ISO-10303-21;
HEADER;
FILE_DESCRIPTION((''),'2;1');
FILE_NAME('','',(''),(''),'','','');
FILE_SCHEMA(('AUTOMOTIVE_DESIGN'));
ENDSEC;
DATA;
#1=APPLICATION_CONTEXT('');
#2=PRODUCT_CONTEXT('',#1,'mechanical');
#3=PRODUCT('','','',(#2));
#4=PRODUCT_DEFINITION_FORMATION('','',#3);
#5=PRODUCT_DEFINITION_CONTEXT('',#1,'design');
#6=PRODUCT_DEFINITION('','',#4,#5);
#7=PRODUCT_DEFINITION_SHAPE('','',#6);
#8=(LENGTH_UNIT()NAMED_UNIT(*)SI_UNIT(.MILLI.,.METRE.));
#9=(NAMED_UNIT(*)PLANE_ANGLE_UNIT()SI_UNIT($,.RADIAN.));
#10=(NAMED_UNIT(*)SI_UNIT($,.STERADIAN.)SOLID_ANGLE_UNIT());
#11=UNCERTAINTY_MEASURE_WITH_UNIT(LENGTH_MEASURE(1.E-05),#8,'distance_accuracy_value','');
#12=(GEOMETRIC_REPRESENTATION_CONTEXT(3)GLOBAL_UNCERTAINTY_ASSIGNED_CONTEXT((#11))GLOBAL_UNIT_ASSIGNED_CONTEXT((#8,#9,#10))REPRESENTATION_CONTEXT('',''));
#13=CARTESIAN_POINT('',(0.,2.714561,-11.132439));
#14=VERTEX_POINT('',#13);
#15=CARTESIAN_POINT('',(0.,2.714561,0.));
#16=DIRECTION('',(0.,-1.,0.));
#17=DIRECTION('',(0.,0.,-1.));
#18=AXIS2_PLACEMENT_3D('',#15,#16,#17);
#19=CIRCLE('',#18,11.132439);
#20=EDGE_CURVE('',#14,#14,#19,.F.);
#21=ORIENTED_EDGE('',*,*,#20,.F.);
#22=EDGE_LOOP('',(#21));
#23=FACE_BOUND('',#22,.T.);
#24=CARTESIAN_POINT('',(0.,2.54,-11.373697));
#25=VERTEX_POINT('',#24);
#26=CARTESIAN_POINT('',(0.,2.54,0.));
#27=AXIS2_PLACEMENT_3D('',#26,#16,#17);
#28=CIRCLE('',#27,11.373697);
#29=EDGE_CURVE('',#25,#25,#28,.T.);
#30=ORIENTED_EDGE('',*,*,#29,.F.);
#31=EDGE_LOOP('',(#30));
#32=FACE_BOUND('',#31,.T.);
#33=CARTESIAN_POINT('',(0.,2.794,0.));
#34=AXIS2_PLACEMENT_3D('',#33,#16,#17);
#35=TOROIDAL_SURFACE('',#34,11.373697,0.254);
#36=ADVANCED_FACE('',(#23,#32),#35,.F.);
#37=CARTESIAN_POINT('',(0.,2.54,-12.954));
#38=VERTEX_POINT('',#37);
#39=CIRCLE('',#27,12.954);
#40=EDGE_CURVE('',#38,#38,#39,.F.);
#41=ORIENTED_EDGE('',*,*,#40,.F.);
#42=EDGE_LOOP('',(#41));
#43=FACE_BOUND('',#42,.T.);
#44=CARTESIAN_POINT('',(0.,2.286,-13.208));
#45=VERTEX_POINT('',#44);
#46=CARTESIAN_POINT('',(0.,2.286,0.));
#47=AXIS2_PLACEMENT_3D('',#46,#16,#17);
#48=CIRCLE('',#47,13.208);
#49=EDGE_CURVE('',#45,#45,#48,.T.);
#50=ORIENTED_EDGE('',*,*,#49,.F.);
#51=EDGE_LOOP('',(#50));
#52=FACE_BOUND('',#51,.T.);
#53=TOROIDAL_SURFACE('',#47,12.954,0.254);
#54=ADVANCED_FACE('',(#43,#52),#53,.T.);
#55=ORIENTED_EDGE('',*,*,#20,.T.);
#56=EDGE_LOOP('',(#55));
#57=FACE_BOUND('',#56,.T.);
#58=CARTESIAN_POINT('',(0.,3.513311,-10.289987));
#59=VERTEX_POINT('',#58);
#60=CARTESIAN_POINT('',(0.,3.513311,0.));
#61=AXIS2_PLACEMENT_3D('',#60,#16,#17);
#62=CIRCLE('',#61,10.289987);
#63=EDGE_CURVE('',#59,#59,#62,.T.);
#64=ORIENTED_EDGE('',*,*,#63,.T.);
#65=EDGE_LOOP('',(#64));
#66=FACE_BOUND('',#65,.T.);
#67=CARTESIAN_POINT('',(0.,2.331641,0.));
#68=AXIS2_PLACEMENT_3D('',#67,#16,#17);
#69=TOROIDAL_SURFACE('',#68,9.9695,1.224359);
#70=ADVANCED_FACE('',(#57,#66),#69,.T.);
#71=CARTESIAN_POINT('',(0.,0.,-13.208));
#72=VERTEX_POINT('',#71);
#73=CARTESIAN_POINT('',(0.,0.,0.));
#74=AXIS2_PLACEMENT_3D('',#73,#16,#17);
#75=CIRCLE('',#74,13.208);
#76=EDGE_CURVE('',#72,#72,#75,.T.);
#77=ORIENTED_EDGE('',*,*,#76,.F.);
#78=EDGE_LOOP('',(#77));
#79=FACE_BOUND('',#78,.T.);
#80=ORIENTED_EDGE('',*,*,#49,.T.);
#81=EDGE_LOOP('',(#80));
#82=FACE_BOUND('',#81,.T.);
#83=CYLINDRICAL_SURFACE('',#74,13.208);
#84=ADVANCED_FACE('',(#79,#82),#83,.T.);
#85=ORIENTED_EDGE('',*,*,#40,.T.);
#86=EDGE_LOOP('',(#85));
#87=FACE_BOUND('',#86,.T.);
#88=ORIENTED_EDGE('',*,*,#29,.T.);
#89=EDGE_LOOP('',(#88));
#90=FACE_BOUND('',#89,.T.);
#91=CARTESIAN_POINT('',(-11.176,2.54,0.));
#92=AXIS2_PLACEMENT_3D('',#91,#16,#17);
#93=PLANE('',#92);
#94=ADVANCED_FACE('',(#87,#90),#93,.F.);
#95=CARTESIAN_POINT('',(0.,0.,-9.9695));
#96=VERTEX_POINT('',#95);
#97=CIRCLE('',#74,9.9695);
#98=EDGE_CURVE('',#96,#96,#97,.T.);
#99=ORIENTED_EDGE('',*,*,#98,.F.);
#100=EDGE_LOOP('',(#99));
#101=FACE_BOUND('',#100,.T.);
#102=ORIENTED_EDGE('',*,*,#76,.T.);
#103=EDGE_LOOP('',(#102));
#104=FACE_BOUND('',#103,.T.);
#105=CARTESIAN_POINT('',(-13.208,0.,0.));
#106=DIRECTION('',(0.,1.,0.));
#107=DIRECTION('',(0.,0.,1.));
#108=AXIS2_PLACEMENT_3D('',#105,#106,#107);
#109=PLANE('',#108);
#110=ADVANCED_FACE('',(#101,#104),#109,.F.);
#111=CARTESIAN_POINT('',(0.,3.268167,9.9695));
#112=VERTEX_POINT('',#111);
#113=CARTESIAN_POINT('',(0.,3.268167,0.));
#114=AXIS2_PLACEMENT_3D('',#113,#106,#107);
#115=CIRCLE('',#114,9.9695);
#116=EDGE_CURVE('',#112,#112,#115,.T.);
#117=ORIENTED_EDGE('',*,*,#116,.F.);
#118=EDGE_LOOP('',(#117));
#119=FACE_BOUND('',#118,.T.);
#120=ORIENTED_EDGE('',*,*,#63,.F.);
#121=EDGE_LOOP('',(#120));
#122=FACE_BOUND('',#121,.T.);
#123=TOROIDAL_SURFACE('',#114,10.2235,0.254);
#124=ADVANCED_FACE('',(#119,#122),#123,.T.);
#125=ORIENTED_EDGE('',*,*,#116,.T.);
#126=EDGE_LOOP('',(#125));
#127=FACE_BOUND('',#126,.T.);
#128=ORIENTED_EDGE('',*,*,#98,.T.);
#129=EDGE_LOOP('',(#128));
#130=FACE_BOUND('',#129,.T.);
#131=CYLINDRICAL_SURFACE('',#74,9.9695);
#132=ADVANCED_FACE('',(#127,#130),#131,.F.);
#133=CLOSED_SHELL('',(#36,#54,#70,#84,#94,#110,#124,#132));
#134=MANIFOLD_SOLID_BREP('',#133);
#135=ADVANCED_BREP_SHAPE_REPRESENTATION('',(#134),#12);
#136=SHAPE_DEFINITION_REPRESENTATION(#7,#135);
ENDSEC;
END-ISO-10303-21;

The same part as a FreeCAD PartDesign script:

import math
import FreeCAD as App
import Part
import Sketcher

V = App.Vector
Q = App.Units.Quantity


def edges_at(feature, points):
    """Names of the edges that pass closest to the given points."""
    edges = feature.Shape.Edges
    near = lambda p: min(range(len(edges)), key=lambda i: edges[i].distToShape(Part.Vertex(*p))[0])
    return sorted({f"Edge{near(p) + 1}" for p in points})

doc = App.newDocument("Part")
body = doc.addObject("PartDesign::Body", "Body")

sketch1 = body.newObject("Sketcher::SketchObject", "Sketch")
sketch1.AttachmentSupport = (doc.getObject("XY_Plane"), [""])
sketch1.MapMode = "FlatFace"
sketch1.addGeometry([
    Part.LineSegment(V(-9.9695, 0, 0), V(-9.9695, 3.556, 0)),
    Part.ArcOfCircle(Part.Circle(V(-9.9695, 2.331641, 0), V(0, 0, 1), 1.224359), math.radians(90), math.radians(170.201815)),
    Part.LineSegment(V(-11.176, 2.54, 0), V(-13.208, 2.54, 0)),
    Part.LineSegment(V(-13.208, 2.54, 0), V(-13.208, 0, 0)),
    Part.LineSegment(V(-13.208, 0, 0), V(-9.9695, 0, 0)),
], False)
sketch1.addConstraint([
    Sketcher.Constraint("Coincident", 0, 2, 1, 1),
    Sketcher.Constraint("Coincident", 1, 2, 2, 1),
    Sketcher.Constraint("Coincident", 2, 2, 3, 1),
    Sketcher.Constraint("Coincident", 3, 2, 4, 1),
    Sketcher.Constraint("Coincident", 4, 2, 0, 1),
    Sketcher.Constraint("Vertical", 0),
    Sketcher.Constraint("Horizontal", 2),
    Sketcher.Constraint("Vertical", 3),
    Sketcher.Constraint("Horizontal", 4),
    Sketcher.Constraint("PointOnObject", 3, 2, -1),
    Sketcher.Constraint("Vertical", 1, 3, 0, 2),
    Sketcher.Constraint("DistanceY", 3, 2, 3, 1, Q("0.1 in")),
    Sketcher.Constraint("DistanceX", 2, 2, 2, 1, Q("0.08 in")),
    Sketcher.Constraint("DistanceY", 0, 1, 0, 2, Q("0.14 in")),
    Sketcher.Constraint("DistanceX", 1, 2, -1, 1, Q("0.44 in")),
    Sketcher.Constraint("DistanceX", 4, 1, 4, 2, Q("0.1275 in")),
])
revolution = body.newObject("PartDesign::Revolution", "Revolution")
revolution.Profile = sketch1
revolution.ReferenceAxis = (sketch1, ["V_Axis"])
revolution.Angle = 360
doc.recompute()

fillet = body.newObject("PartDesign::Fillet", "Fillet")
fillet.Base = (revolution, edges_at(revolution, [(13.208, 2.54, 0), (11.176, 2.54, 0), (9.97, 3.556, 0)]))
fillet.Radius = Q("0.01 in")

doc.recompute()
